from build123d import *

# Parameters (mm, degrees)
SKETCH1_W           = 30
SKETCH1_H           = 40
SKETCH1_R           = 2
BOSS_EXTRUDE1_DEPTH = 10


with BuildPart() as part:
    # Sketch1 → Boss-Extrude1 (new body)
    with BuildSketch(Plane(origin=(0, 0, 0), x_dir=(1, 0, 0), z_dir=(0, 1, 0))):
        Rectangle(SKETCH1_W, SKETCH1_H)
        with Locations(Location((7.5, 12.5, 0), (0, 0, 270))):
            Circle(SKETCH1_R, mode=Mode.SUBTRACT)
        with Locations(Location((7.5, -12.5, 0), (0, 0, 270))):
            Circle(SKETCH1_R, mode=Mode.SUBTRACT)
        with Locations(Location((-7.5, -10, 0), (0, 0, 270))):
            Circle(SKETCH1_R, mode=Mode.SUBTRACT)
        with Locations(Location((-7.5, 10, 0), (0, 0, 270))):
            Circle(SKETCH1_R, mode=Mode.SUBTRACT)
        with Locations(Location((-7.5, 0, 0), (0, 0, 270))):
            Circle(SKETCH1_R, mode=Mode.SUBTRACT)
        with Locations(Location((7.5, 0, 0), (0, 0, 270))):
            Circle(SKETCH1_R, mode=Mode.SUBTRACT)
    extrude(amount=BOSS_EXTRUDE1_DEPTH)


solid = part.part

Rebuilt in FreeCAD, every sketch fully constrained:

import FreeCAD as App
import Part
import Sketcher
from FreeCAD import Vector

doc = App.newDocument("Part")
params = doc.addObject("Spreadsheet::Sheet", "Params")
for row, (alias, value) in enumerate([
    ("sketch1_diameter", "4 mm"),
    ("sketch1_width", "30 mm"),
    ("sketch1_height", "40 mm"),
    ("pad1_length", "10 mm"),
], start=1):
    params.set(f"A{row}", alias)
    params.set(f"B{row}", "=" + value)
    params.setAlias(f"B{row}", alias)

body = doc.addObject("PartDesign::Body", "Body")

# Sketch on XZ plane
sketch1 = body.newObject("Sketcher::SketchObject", "Sketch")
sketch1.AttachmentSupport = (doc.getObject("XZ_Plane"), [""])
sketch1.MapMode = "FlatFace"
sketch1.addGeometry(Part.LineSegment(Vector(-15, -20, 0), Vector(-15, 20, 0)), False)
sketch1.addGeometry(Part.LineSegment(Vector(-15, 20, 0), Vector(15, 20, 0)), False)
sketch1.addGeometry(Part.LineSegment(Vector(15, 20, 0), Vector(15, -20, 0)), False)
sketch1.addGeometry(Part.LineSegment(Vector(15, -20, 0), Vector(-15, -20, 0)), False)
sketch1.addGeometry(Part.Circle(Vector(-7.5, 10, 0), Vector(0, 0, 1), 2), False)
sketch1.addGeometry(Part.Circle(Vector(7.5, 12.5, 0), Vector(0, 0, 1), 2), False)
sketch1.addGeometry(Part.Circle(Vector(-7.5, 0, 0), Vector(0, 0, 1), 2), False)
sketch1.addGeometry(Part.Circle(Vector(-7.5, -10, 0), Vector(0, 0, 1), 2), False)
sketch1.addGeometry(Part.Circle(Vector(7.5, 0, 0), Vector(0, 0, 1), 2), False)
sketch1.addGeometry(Part.Circle(Vector(7.5, -12.5, 0), Vector(0, 0, 1), 2), False)
sketch1.addConstraint(Sketcher.Constraint("Coincident", 0, 2, 1, 1))
sketch1.addConstraint(Sketcher.Constraint("Coincident", 1, 2, 2, 1))
sketch1.addConstraint(Sketcher.Constraint("Coincident", 2, 2, 3, 1))
sketch1.addConstraint(Sketcher.Constraint("Coincident", 3, 2, 0, 1))
sketch1.addConstraint(Sketcher.Constraint("Vertical", 0))
sketch1.addConstraint(Sketcher.Constraint("Horizontal", 1))
sketch1.addConstraint(Sketcher.Constraint("Vertical", 2))
sketch1.addConstraint(Sketcher.Constraint("Horizontal", 3))
sketch1.addConstraint(Sketcher.Constraint("Equal", 4, 5))
sketch1.addConstraint(Sketcher.Constraint("Equal", 5, 6))
sketch1.addConstraint(Sketcher.Constraint("Equal", 6, 7))
sketch1.addConstraint(Sketcher.Constraint("Equal", 7, 8))
sketch1.addConstraint(Sketcher.Constraint("Equal", 8, 9))
sketch1.addConstraint(Sketcher.Constraint("Symmetric", 6, 3, 8, 3, -1, 1))
sketch1.addConstraint(Sketcher.Constraint("Symmetric", 0, 2, 2, 2, -1, 1))
sketch1.addConstraint(Sketcher.Constraint("Symmetric", 4, 3, 7, 3, -1))
sketch1.addConstraint(Sketcher.Constraint("Symmetric", 5, 3, 9, 3, -1))
sketch1.addConstraint(Sketcher.Constraint("PointOnObject", 6, 3, -1))
sketch1.addConstraint(Sketcher.Constraint("Vertical", 4, 3, 6, 3))
sketch1.addConstraint(Sketcher.Constraint("Vertical", 5, 3, 8, 3))
sketch1.addConstraint(Sketcher.Constraint("Diameter", 4, 4.0))
sketch1.addConstraint(Sketcher.Constraint("DistanceX", 1, 1, 1, 2, 30.0))
sketch1.addConstraint(Sketcher.Constraint("DistanceY", 0, 1, 0, 2, 40.0))
sketch1.addConstraint(Sketcher.Constraint("DistanceY", -1, 1, 4, 3, 10.0))
sketch1.addConstraint(Sketcher.Constraint("DistanceX", 4, 3, 5, 3, 15.0))
sketch1.addConstraint(Sketcher.Constraint("DistanceY", 9, 3, 5, 3, 25.0))
sketch1.setExpression("Constraints[20]", "Params.sketch1_diameter")
sketch1.setExpression("Constraints[21]", "Params.sketch1_width")
sketch1.setExpression("Constraints[22]", "Params.sketch1_height")
pad1 = body.newObject("PartDesign::Pad", "Pad")
pad1.Profile = sketch1
pad1.setExpression("Length", "Params.pad1_length")
pad1.Reversed = True

doc.recompute()
